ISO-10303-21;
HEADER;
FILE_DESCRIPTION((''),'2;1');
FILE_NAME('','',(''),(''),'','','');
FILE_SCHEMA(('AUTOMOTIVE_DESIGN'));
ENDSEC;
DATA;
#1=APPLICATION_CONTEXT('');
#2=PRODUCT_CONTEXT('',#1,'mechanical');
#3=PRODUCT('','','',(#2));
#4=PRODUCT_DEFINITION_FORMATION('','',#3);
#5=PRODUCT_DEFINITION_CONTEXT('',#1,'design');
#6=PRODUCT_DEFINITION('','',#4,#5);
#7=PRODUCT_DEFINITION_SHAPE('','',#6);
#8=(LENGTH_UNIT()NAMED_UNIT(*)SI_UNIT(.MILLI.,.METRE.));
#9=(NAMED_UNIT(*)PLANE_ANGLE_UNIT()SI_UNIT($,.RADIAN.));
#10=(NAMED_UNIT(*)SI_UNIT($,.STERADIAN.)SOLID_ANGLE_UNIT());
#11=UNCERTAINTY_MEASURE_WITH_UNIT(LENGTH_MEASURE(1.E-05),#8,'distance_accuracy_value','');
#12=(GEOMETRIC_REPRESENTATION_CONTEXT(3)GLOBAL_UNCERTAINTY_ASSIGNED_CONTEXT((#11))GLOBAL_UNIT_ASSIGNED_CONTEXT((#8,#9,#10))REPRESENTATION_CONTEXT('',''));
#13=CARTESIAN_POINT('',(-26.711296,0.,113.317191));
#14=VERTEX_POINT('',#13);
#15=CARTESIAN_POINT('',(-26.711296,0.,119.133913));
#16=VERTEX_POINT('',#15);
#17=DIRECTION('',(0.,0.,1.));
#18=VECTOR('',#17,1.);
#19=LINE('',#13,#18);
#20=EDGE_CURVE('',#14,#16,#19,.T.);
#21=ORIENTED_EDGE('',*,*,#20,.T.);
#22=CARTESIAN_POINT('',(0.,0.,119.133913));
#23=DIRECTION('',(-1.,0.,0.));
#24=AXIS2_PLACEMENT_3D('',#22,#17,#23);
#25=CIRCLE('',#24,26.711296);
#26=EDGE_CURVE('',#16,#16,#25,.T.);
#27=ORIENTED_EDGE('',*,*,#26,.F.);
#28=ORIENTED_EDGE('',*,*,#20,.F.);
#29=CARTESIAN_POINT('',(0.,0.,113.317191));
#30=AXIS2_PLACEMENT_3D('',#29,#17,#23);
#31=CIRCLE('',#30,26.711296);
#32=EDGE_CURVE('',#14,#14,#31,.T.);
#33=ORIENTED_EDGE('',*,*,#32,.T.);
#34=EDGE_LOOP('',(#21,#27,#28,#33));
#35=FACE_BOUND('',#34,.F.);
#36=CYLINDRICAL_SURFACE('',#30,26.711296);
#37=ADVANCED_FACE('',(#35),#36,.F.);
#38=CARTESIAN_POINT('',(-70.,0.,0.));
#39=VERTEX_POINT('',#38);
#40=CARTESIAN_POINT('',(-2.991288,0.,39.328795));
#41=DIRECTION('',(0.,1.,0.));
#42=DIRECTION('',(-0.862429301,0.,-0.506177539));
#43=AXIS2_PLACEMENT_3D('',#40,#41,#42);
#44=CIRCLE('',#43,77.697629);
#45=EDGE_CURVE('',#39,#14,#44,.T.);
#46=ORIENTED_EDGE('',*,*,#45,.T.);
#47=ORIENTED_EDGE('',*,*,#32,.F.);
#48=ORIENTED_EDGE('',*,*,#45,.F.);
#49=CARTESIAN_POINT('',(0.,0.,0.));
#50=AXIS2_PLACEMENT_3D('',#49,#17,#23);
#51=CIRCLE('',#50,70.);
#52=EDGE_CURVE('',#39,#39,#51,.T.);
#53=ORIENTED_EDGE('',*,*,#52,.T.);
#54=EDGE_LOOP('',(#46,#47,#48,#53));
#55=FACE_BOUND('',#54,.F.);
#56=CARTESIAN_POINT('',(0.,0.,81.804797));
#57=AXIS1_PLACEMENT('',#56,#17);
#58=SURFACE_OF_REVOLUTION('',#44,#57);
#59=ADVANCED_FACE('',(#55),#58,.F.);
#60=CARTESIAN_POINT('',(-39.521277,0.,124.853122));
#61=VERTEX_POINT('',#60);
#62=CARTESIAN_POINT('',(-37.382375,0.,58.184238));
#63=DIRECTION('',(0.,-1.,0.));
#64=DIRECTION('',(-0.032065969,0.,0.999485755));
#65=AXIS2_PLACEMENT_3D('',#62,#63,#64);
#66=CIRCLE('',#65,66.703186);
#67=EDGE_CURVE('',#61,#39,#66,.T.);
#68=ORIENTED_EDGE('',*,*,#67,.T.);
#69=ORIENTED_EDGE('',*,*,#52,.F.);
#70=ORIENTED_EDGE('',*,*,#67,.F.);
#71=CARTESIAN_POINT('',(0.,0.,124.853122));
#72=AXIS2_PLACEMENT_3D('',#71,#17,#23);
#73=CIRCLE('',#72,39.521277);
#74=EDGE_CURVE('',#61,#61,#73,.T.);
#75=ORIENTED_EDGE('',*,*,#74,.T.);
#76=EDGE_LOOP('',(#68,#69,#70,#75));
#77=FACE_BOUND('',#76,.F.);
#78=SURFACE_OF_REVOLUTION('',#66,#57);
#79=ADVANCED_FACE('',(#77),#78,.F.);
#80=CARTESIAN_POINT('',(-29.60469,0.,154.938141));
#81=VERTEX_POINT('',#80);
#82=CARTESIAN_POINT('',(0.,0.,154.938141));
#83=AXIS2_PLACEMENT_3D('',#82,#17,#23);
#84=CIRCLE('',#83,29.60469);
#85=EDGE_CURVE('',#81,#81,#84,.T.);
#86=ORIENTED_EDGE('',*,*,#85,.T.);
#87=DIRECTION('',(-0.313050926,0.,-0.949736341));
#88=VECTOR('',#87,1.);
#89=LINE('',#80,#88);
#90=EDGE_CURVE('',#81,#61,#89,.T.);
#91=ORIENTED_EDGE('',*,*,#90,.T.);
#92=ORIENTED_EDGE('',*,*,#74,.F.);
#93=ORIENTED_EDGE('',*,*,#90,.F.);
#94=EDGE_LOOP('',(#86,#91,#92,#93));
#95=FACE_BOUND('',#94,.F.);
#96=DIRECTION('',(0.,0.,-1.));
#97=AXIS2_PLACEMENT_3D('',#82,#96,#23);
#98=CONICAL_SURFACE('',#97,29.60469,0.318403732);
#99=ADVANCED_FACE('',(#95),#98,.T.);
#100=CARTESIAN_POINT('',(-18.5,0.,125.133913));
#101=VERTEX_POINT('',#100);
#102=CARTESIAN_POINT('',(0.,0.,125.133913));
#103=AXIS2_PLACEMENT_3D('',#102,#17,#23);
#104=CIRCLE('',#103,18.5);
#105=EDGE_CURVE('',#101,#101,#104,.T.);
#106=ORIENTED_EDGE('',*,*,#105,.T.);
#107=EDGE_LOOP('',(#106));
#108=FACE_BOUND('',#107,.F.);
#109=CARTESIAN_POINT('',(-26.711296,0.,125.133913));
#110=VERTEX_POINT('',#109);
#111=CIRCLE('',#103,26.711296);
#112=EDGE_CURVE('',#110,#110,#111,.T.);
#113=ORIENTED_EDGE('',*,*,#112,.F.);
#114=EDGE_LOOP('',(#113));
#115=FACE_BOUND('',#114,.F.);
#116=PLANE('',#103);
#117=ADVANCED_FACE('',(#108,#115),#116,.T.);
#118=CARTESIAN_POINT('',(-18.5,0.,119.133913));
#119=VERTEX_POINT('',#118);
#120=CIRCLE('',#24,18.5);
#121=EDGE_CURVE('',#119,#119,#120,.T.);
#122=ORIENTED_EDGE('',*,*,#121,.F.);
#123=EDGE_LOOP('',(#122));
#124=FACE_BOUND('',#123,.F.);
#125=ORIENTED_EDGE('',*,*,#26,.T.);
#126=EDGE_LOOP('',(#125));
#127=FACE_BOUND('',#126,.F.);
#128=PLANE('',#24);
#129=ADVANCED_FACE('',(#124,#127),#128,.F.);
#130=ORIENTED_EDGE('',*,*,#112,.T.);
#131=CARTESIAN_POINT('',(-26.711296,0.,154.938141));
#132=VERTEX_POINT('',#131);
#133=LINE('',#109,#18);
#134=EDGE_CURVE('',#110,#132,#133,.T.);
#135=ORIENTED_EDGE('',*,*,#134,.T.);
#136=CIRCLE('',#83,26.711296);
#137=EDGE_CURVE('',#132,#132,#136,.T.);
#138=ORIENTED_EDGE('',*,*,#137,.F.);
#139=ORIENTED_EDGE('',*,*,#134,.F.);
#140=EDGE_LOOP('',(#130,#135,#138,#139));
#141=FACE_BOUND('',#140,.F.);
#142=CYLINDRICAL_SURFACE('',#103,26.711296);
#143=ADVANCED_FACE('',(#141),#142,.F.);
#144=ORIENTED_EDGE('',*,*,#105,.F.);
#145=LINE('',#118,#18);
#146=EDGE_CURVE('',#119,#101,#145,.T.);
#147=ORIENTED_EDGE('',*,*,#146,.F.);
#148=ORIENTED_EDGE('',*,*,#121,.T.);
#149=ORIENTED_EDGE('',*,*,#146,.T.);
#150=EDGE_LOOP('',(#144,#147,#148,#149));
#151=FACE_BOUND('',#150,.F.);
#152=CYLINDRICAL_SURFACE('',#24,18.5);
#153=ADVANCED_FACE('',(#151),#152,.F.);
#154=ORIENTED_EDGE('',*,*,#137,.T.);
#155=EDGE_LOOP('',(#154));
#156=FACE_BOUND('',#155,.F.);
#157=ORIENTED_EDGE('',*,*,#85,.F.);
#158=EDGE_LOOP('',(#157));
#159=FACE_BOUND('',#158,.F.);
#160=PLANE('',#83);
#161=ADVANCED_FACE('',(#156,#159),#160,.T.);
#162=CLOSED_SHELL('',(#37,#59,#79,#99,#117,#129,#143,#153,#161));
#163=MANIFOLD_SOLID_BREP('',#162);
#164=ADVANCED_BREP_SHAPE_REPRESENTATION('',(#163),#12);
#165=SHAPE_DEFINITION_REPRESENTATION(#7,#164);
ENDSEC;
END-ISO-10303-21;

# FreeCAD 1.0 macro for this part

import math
import FreeCAD as App
import Part
import Sketcher

doc = App.newDocument("Part")
body = doc.addObject("PartDesign::Body", "Body")

sketch1 = body.newObject("Sketcher::SketchObject", "Sketch")
sketch1.AttachmentSupport = (doc.getObject("XZ_Plane"), [""])
sketch1.MapMode = "FlatFace"
sketch1.addGeometry([
    Part.ArcOfCircle(Part.Circle(App.Vector(-3, 39.3, 0), App.Vector(0, 0, 1), 77.7), math.radians(108), math.radians(210)),
    Part.LineSegment(App.Vector(-26.7, 113.3, 0), App.Vector(-26.7, 119.1, 0)),
    Part.LineSegment(App.Vector(-26.7, 119.1, 0), App.Vector(-18.5, 119.1, 0)),
    Part.LineSegment(App.Vector(-18.5, 119.1, 0), App.Vector(-18.5, 125.1, 0)),
    Part.LineSegment(App.Vector(-18.5, 125.1, 0), App.Vector(-26.7, 125.1, 0)),
    Part.LineSegment(App.Vector(-26.7, 125.1, 0), App.Vector(-26.7, 154.9, 0)),
    Part.LineSegment(App.Vector(-26.7, 154.9, 0), App.Vector(-29.6, 154.9, 0)),
    Part.LineSegment(App.Vector(-29.6, 154.9, 0), App.Vector(-39.5, 124.9, 0)),
    Part.ArcOfCircle(Part.Circle(App.Vector(-37.4, 58.2, 0), App.Vector(0, 0, 1), 66.7), math.radians(92), math.radians(241)),
], False)
sketch1.addConstraint([
    Sketcher.Constraint("Coincident", 0, 1, 1, 1),
    Sketcher.Constraint("Coincident", 1, 2, 2, 1),
    Sketcher.Constraint("Coincident", 2, 2, 3, 1),
    Sketcher.Constraint("Coincident", 3, 2, 4, 1),
    Sketcher.Constraint("Coincident", 4, 2, 5, 1),
    Sketcher.Constraint("Coincident", 5, 2, 6, 1),
    Sketcher.Constraint("Coincident", 6, 2, 7, 1),
    Sketcher.Constraint("Coincident", 7, 2, 8, 1),
    Sketcher.Constraint("Coincident", 8, 2, 0, 2),
    Sketcher.Constraint("Vertical", 1),
    Sketcher.Constraint("Horizontal", 2),
    Sketcher.Constraint("Vertical", 3),
    Sketcher.Constraint("Horizontal", 4),
    Sketcher.Constraint("Vertical", 5),
    Sketcher.Constraint("Horizontal", 6),
    Sketcher.Constraint("PointOnObject", 8, 2, -1),
    Sketcher.Constraint("Vertical", 1, 2, 4, 2),
    Sketcher.Constraint("DistanceY", 3, 1, 3, 2, 6.0),
    Sketcher.Constraint("DistanceX", 8, 2, -1, 1, 70.0),
    Sketcher.Constraint("DistanceX", 2, 2, -1, 1, 18.5),
    Sketcher.Constraint("Radius", 0, 77.697629),
    Sketcher.Constraint("Radius", 8, 66.703186),
    Sketcher.Constraint("DistanceX", 2, 1, 2, 2, 8.211296),
    Sketcher.Constraint("DistanceX", 6, 2, 6, 1, 2.893394),
    Sketcher.Constraint("DistanceY", 1, 1, 1, 2, 5.816722),
    Sketcher.Constraint("DistanceY", 5, 1, 5, 2, 29.804228),
    Sketcher.Constraint("DistanceX", 0, 3, -1, 1, 2.991288),
    Sketcher.Constraint("DistanceY", -1, 1, 7, 2, 124.853122),
    Sketcher.Constraint("DistanceX", 8, 3, 1, 2, 10.671079),
])
revolution = body.newObject("PartDesign::Revolution", "Revolution")
revolution.Profile = sketch1
revolution.ReferenceAxis = (sketch1, ["V_Axis"])
revolution.Angle = 360

doc.recompute()
